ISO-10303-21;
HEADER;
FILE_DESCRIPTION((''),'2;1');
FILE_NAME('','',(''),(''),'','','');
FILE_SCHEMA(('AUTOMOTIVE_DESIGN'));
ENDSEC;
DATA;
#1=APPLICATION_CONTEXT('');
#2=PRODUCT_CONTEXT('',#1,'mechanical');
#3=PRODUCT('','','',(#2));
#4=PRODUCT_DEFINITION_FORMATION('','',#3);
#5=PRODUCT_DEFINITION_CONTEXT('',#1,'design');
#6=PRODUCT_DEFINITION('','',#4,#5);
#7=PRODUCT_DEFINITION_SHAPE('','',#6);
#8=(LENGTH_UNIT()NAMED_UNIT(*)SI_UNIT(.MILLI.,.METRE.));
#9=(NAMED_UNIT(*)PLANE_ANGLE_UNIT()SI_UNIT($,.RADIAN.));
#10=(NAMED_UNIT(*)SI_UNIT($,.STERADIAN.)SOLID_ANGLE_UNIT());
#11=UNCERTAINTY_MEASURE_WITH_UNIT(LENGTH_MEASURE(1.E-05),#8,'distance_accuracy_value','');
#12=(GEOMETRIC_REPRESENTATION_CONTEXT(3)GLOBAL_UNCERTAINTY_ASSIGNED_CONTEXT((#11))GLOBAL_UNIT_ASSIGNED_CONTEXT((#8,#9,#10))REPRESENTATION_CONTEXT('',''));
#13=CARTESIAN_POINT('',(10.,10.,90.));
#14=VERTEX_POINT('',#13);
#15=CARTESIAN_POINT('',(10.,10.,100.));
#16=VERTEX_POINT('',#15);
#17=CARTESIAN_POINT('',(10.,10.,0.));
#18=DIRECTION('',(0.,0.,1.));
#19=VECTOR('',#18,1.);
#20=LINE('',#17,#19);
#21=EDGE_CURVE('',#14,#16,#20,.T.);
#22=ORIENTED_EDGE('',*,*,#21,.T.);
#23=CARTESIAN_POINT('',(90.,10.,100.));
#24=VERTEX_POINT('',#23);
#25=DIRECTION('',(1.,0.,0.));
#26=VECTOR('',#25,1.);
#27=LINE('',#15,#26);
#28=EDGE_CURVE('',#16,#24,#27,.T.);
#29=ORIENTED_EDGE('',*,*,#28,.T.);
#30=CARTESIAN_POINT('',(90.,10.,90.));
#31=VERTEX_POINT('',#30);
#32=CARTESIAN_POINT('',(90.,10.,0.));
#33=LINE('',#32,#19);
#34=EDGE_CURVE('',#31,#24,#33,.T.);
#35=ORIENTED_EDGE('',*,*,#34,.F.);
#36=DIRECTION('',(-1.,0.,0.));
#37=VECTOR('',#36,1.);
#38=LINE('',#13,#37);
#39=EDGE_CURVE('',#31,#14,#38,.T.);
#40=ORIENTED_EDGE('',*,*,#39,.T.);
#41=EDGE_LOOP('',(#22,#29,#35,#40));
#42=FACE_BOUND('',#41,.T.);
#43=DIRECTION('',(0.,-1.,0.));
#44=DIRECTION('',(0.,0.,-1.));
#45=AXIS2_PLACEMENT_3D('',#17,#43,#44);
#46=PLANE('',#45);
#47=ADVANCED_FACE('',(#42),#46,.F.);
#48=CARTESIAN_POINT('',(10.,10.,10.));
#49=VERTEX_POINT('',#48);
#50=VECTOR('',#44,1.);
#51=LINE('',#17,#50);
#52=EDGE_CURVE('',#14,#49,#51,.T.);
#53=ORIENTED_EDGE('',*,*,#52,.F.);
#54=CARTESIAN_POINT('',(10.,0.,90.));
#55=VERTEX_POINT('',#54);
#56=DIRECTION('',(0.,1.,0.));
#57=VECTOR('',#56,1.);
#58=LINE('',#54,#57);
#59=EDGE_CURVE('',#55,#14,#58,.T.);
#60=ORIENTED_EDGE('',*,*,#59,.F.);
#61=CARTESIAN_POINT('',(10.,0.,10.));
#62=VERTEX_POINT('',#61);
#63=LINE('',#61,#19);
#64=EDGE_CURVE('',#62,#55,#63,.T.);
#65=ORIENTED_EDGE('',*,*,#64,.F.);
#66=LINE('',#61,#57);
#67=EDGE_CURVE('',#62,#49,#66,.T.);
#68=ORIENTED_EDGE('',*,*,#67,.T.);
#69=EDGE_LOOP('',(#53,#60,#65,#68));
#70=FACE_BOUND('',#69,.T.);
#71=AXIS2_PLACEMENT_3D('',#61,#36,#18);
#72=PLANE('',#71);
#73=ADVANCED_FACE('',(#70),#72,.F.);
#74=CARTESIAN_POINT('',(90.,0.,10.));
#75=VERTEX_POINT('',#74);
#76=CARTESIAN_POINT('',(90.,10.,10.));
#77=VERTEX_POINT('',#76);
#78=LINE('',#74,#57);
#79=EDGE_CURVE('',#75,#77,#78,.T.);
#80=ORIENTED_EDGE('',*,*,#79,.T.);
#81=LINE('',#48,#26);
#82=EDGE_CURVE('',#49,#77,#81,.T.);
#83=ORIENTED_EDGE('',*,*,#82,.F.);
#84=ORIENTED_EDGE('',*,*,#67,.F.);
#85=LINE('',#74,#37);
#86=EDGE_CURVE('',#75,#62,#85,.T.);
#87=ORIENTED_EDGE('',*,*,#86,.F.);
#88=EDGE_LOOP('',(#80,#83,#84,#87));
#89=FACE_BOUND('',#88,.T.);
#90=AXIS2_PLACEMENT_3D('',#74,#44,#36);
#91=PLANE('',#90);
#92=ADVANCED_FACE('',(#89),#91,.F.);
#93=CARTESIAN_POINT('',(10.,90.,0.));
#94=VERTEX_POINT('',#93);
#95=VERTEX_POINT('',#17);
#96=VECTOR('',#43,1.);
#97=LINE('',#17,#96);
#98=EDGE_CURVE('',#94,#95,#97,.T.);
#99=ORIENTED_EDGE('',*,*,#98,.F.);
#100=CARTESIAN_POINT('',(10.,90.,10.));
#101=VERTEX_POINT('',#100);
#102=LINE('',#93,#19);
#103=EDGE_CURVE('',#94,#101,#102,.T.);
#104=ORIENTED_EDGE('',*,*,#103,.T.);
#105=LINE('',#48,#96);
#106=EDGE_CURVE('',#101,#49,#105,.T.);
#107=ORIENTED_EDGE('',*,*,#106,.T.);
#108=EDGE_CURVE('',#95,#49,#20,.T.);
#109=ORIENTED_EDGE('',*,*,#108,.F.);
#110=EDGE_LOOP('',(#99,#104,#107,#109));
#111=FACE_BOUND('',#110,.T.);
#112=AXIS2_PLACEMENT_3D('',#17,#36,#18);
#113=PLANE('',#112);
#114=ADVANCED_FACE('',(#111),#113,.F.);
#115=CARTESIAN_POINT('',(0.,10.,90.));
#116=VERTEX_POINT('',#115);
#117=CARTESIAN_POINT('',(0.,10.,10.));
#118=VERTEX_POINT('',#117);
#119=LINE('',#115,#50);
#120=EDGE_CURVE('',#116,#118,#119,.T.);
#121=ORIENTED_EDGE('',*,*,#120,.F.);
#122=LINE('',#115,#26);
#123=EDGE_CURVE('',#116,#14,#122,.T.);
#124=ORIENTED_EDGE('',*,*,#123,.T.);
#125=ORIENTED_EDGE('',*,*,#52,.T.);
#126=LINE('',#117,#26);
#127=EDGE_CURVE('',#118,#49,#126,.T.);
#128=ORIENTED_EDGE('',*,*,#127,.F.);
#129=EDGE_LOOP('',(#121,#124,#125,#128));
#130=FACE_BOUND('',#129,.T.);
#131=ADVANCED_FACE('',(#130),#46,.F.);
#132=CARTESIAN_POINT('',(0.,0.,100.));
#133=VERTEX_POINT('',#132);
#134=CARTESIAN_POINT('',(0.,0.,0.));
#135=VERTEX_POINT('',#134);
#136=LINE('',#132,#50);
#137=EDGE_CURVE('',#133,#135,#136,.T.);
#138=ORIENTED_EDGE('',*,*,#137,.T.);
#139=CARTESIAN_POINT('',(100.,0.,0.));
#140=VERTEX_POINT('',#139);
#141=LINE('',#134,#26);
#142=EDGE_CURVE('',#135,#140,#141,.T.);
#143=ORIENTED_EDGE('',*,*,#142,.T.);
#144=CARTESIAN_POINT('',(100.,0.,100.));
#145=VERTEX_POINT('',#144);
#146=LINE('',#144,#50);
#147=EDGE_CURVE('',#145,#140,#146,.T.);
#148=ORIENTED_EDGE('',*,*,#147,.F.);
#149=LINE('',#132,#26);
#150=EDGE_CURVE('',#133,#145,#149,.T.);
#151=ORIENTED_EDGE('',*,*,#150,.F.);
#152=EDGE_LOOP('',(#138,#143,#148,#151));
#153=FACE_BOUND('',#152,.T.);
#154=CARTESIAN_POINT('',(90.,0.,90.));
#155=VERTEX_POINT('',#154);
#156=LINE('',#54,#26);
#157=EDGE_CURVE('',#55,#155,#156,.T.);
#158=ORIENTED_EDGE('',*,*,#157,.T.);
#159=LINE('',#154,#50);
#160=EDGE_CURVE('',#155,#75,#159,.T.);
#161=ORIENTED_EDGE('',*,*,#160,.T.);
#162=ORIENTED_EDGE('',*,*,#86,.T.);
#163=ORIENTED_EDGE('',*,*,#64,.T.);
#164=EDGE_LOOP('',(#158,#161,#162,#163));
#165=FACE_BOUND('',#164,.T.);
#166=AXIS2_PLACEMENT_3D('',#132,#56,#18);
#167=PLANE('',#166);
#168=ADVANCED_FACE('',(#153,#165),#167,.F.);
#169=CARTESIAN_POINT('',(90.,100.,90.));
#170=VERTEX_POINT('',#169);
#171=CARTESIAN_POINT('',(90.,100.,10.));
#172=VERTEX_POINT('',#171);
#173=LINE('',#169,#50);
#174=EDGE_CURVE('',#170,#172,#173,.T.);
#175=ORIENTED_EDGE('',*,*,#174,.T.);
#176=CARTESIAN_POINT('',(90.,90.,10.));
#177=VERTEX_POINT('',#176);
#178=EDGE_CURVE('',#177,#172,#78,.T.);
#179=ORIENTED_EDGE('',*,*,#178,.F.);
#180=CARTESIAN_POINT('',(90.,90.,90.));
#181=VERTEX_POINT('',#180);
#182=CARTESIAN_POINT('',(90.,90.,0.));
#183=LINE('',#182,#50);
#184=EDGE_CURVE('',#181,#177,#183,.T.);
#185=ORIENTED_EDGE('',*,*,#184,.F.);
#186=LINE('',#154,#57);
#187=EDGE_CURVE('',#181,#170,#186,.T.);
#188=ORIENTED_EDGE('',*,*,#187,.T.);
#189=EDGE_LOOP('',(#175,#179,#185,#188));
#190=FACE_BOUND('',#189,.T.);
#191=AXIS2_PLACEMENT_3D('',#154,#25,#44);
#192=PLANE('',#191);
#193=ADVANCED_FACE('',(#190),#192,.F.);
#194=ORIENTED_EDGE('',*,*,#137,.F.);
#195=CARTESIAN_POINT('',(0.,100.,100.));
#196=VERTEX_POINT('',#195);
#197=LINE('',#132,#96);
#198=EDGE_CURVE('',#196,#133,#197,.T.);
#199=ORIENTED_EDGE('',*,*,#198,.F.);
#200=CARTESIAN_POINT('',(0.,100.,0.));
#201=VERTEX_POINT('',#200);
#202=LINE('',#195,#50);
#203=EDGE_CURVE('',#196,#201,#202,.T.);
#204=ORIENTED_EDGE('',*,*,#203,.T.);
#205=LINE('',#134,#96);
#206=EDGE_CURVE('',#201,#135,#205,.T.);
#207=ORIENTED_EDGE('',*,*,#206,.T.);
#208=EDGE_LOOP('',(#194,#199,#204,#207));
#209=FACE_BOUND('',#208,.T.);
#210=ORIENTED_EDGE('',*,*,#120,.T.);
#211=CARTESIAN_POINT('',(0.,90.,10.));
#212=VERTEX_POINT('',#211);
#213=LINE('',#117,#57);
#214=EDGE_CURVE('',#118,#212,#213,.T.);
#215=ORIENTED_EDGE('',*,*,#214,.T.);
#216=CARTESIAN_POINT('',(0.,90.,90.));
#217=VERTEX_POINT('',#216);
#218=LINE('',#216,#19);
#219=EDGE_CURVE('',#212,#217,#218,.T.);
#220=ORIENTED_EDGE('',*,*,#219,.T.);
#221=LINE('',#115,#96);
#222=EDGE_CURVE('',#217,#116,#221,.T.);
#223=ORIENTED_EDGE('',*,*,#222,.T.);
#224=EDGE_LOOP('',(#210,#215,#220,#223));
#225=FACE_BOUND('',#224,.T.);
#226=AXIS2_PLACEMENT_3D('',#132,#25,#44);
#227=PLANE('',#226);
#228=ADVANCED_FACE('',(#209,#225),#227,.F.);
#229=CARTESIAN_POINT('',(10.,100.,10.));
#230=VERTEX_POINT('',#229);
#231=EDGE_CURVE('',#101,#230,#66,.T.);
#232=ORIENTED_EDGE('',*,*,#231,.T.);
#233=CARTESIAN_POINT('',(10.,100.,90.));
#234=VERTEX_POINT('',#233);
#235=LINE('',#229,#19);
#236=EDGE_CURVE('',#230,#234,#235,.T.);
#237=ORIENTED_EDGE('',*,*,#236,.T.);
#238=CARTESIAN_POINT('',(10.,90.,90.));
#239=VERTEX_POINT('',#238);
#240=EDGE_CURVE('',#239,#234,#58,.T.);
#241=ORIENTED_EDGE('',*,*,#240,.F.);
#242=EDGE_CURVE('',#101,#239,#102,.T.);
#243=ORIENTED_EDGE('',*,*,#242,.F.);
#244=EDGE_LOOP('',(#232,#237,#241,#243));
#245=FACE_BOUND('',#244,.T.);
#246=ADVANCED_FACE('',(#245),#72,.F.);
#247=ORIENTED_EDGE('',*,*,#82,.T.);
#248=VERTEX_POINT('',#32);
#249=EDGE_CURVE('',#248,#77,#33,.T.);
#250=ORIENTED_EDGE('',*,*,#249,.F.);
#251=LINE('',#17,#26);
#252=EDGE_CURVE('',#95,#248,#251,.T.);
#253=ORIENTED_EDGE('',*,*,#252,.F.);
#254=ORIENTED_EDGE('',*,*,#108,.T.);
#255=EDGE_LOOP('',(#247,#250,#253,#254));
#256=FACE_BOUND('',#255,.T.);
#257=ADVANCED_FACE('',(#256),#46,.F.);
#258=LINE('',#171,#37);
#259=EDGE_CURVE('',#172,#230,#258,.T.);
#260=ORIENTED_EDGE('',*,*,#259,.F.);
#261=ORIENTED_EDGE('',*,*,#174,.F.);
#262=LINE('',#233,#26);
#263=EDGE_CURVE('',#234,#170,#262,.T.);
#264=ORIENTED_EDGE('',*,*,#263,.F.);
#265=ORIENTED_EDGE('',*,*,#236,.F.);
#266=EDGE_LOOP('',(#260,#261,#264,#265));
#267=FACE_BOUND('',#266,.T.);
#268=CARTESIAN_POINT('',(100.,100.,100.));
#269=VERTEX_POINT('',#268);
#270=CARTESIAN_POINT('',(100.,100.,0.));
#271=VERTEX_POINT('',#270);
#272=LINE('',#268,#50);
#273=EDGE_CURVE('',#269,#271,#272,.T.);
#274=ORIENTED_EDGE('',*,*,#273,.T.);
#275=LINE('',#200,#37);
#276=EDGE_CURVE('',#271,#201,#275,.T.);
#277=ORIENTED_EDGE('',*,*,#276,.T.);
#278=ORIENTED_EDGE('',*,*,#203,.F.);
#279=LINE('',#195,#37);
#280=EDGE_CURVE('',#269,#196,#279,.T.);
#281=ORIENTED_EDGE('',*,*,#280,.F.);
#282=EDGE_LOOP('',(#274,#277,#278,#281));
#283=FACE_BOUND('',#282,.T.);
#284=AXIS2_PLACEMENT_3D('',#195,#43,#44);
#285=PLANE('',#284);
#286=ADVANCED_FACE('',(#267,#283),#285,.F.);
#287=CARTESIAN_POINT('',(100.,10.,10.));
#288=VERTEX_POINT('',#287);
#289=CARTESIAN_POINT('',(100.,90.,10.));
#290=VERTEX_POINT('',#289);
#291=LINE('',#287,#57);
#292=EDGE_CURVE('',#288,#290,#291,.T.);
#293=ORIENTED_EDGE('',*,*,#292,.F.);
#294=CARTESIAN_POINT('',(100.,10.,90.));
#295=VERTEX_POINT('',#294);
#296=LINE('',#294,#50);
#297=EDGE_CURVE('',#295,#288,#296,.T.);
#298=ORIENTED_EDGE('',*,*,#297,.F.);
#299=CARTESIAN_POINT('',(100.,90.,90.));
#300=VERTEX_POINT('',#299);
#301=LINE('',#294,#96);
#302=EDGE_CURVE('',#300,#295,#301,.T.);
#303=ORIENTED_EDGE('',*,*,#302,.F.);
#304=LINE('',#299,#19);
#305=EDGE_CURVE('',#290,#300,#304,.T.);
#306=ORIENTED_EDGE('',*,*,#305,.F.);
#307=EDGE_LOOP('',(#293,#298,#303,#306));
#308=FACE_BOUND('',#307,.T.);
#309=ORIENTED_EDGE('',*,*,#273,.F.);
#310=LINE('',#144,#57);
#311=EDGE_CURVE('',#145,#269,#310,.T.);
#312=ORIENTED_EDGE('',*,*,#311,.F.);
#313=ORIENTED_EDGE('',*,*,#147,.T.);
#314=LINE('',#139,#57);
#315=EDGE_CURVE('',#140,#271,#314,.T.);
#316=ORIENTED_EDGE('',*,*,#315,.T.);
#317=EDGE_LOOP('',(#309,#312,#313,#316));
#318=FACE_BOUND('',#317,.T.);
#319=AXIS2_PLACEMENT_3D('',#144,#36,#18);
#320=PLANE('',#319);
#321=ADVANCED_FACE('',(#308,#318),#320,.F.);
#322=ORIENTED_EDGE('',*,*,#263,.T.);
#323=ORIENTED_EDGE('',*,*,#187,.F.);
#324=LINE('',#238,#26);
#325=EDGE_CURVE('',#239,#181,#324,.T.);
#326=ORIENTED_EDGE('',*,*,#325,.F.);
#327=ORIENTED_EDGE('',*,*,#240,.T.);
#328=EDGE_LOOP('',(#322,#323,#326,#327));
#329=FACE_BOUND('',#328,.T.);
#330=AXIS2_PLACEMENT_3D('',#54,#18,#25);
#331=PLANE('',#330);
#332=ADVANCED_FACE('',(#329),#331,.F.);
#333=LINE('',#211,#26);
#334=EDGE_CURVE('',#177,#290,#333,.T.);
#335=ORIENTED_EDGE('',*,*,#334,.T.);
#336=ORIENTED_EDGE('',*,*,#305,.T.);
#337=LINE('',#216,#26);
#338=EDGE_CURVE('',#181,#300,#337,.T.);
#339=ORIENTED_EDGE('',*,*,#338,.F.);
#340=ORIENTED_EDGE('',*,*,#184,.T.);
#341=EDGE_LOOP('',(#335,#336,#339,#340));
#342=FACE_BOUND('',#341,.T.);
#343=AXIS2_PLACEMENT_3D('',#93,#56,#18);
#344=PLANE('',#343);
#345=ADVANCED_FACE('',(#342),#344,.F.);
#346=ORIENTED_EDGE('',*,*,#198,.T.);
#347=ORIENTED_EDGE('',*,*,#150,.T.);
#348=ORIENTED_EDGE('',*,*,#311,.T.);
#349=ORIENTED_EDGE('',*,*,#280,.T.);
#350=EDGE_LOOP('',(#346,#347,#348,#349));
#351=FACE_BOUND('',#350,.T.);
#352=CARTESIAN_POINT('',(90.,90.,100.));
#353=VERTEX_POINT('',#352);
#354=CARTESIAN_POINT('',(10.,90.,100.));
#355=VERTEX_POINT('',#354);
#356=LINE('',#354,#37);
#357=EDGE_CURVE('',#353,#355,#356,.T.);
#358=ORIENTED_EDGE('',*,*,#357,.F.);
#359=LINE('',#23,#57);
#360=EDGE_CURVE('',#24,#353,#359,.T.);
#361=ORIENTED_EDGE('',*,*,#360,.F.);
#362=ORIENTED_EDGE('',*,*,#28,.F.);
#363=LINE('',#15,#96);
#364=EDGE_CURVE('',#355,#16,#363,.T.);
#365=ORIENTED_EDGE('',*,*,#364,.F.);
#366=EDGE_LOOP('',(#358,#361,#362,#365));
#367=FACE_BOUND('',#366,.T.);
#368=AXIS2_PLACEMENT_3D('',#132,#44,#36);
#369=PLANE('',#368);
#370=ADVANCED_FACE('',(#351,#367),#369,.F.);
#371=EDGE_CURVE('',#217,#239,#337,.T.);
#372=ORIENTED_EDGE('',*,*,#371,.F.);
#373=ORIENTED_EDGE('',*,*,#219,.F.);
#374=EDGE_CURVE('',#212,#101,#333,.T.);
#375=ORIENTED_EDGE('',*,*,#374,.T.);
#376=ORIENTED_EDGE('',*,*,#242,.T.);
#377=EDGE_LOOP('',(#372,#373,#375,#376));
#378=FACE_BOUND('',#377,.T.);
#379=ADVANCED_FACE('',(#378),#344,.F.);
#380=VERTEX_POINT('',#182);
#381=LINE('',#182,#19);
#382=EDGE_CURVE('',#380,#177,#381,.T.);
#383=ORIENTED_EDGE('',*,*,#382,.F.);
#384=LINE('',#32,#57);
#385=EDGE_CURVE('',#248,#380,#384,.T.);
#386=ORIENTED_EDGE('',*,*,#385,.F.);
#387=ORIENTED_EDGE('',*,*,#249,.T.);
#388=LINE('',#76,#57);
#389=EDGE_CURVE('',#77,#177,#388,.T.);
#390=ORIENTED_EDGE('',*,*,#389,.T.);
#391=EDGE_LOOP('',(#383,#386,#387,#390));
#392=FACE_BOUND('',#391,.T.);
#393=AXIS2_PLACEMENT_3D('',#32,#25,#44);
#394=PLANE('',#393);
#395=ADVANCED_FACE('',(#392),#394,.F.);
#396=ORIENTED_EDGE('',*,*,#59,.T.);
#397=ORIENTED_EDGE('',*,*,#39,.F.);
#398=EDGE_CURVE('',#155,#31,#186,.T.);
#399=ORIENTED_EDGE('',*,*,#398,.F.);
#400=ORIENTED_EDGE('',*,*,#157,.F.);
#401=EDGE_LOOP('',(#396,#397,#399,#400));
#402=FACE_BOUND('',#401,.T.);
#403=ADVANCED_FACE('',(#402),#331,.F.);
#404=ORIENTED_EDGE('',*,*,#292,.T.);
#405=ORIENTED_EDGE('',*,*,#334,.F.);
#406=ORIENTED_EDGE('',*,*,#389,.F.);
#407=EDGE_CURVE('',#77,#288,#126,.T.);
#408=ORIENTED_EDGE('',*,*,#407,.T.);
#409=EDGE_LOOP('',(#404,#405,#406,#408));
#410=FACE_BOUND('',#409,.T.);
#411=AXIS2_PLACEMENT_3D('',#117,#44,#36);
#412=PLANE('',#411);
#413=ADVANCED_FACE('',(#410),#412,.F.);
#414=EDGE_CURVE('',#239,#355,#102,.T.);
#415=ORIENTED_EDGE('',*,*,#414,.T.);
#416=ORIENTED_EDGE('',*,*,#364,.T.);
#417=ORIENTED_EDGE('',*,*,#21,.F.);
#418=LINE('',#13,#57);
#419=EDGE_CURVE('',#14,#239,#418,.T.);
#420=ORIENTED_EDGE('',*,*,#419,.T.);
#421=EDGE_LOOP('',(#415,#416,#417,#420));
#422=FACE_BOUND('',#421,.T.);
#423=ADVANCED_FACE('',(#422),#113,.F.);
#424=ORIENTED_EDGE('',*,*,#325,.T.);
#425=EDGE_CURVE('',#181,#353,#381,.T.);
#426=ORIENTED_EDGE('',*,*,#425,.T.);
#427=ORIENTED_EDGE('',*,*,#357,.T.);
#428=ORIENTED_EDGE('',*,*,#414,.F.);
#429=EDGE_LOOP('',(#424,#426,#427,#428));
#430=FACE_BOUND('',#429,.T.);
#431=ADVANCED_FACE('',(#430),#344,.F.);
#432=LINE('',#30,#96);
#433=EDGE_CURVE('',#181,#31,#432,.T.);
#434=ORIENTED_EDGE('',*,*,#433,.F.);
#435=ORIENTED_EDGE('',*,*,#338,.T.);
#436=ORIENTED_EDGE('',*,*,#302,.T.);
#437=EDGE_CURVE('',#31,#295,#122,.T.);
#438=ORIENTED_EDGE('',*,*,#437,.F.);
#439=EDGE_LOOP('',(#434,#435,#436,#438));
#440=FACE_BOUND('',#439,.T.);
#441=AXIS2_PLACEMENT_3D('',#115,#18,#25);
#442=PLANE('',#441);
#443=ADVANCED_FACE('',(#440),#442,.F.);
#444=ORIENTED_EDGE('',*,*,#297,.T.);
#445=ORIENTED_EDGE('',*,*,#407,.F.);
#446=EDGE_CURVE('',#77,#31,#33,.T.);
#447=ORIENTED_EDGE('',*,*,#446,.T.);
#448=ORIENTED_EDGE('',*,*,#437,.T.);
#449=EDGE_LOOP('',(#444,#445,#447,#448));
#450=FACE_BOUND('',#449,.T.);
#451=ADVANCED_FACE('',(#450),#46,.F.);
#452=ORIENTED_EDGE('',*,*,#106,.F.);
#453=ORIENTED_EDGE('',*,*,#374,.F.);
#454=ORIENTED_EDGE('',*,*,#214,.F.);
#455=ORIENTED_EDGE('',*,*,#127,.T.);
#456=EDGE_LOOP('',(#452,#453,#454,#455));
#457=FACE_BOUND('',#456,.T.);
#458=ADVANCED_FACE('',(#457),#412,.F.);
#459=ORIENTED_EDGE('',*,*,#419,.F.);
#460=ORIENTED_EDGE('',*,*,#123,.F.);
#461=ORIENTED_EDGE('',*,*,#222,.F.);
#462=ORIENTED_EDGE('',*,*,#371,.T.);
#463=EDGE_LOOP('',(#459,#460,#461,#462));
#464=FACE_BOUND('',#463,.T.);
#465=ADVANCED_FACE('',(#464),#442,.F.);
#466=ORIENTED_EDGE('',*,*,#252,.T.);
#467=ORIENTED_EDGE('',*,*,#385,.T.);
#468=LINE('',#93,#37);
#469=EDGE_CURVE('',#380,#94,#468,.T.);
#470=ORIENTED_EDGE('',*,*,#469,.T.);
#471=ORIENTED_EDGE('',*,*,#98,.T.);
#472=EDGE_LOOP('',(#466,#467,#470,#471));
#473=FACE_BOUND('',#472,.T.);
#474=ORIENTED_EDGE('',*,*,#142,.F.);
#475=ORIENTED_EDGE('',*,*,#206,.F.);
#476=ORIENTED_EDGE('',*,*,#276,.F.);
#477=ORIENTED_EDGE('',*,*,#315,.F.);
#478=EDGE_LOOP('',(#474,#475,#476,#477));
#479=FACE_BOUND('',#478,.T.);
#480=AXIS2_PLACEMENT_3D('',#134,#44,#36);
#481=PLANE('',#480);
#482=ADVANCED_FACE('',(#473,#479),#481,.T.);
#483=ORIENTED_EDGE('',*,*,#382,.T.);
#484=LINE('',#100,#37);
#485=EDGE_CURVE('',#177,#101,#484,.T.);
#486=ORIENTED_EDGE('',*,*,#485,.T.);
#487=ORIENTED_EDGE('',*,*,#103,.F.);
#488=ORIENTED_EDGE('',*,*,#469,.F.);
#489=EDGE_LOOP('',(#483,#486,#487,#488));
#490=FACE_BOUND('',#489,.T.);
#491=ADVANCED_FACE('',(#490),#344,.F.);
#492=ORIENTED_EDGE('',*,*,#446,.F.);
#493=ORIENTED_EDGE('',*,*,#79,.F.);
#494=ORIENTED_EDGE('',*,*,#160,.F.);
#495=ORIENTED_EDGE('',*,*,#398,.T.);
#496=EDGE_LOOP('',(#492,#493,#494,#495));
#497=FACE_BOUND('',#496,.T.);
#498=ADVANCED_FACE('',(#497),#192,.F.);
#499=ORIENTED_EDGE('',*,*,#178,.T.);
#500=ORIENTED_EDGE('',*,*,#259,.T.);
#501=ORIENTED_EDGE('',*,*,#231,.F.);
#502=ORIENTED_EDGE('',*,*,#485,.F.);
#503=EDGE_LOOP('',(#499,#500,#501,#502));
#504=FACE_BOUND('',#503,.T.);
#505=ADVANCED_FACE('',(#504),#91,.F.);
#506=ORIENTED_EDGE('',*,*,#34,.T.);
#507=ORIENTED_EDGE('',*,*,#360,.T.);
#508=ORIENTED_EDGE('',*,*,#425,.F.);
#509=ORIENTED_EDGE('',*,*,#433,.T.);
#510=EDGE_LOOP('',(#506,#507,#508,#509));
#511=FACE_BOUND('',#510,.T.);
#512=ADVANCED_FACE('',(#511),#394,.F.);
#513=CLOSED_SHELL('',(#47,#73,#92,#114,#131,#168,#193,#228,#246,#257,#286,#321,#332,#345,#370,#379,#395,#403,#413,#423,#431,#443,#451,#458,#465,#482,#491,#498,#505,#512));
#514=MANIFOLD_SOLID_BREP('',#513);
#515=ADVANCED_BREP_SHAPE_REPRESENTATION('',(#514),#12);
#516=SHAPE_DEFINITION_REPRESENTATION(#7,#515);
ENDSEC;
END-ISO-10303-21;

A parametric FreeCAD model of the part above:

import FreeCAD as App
import Part
import Sketcher
Q = App.Units.Quantity


def add_polygon(sketch, points):
    """Adds a closed chain of lines whose ends are joined by coincident constraints."""
    first, n = sketch.GeometryCount, len(points)
    for a, b in zip(points, points[1:] + points[:1]):
        sketch.addGeometry(Part.LineSegment(App.Vector(*a, 0), App.Vector(*b, 0)), False)
    for i in range(n):
        sketch.addConstraint(Sketcher.Constraint("Coincident", first + i, 2, first + (i + 1) % n, 1))

doc = App.newDocument("Part")
body = doc.addObject("PartDesign::Body", "Body")

sketch1 = body.newObject("Sketcher::SketchObject", "Sketch")
sketch1.AttachmentSupport = (doc.getObject("XY_Plane"), [""])
sketch1.MapMode = "FlatFace"
add_polygon(sketch1, [(0, 100), (0, 0), (100, 0), (100, 100)])
sketch1.addConstraint([
    Sketcher.Constraint("Vertical", 0),
    Sketcher.Constraint("Horizontal", 1),
    Sketcher.Constraint("Vertical", 2),
    Sketcher.Constraint("Horizontal", 3),
    Sketcher.Constraint("Coincident", 0, 2, -1, 1),
    Sketcher.Constraint("Equal", 3, 0),
    Sketcher.Constraint("DistanceX", 1, 1, 1, 2, Q("100 mm")),
])
pad1 = body.newObject("PartDesign::Pad", "Pad")
pad1.Profile = sketch1
pad1.Length = 100

sketch2 = body.newObject("Sketcher::SketchObject", "Sketch001")
sketch2.AttachmentSupport = (doc.getObject("XY_Plane"), [""])
sketch2.MapMode = "FlatFace"
sketch2.AttachmentOffset = App.Placement(App.Vector(0, 0, 100), App.Rotation())
add_polygon(sketch2, [(10, 90), (10, 10), (90, 10), (90, 90)])
sketch2.addConstraint([
    Sketcher.Constraint("Vertical", 0),
    Sketcher.Constraint("Horizontal", 1),
    Sketcher.Constraint("Vertical", 2),
    Sketcher.Constraint("Horizontal", 3),
    Sketcher.Constraint("Equal", 3, 0),
    Sketcher.Constraint("DistanceX", 1, 1, 1, 2, Q("80 mm")),
    Sketcher.Constraint("DistanceX", -1, 1, 0, 2, Q("10 mm")),
    Sketcher.Constraint("DistanceY", -1, 1, 0, 2, Q("10 mm")),
])
pocket1 = body.newObject("PartDesign::Pocket", "Pocket")
pocket1.Profile = sketch2
pocket1.Type = "ThroughAll"

sketch3 = body.newObject("Sketcher::SketchObject", "Sketch002")
sketch3.AttachmentSupport = (doc.getObject("YZ_Plane"), [""])
sketch3.MapMode = "FlatFace"
sketch3.AttachmentOffset = App.Placement(App.Vector(0, 0, 100), App.Rotation())
add_polygon(sketch3, [(90, 90), (10, 90), (10, 10), (90, 10)])
sketch3.addConstraint([
    Sketcher.Constraint("Horizontal", 0),
    Sketcher.Constraint("Vertical", 1),
    Sketcher.Constraint("Horizontal", 2),
    Sketcher.Constraint("Vertical", 3),
    Sketcher.Constraint("Equal", 2, 1),
    Sketcher.Constraint("DistanceX", 0, 2, 0, 1, Q("80 mm")),
    Sketcher.Constraint("DistanceX", -1, 1, 0, 2, Q("10 mm")),
    Sketcher.Constraint("DistanceY", -1, 1, 0, 2, Q("90 mm")),
])
pocket2 = body.newObject("PartDesign::Pocket", "Pocket001")
pocket2.Profile = sketch3
pocket2.Type = "ThroughAll"

sketch4 = body.newObject("Sketcher::SketchObject", "Sketch003")
sketch4.AttachmentSupport = (doc.getObject("XZ_Plane"), [""])
sketch4.MapMode = "FlatFace"
sketch4.AttachmentOffset = App.Placement(App.Vector(0, 0, -100), App.Rotation())
add_polygon(sketch4, [(10, 10), (10, 90), (90, 90), (90, 10)])
sketch4.addConstraint([
    Sketcher.Constraint("Vertical", 0),
    Sketcher.Constraint("Horizontal", 1),
    Sketcher.Constraint("Vertical", 2),
    Sketcher.Constraint("Horizontal", 3),
    Sketcher.Constraint("Equal", 3, 0),
    Sketcher.Constraint("DistanceX", 1, 1, 1, 2, Q("80 mm")),
    Sketcher.Constraint("DistanceX", -1, 1, 0, 2, Q("10 mm")),
    Sketcher.Constraint("DistanceY", -1, 1, 0, 2, Q("90 mm")),
])
pocket3 = body.newObject("PartDesign::Pocket", "Pocket002")
pocket3.Profile = sketch4
pocket3.Type = "ThroughAll"
pocket3.Reversed = True

doc.recompute()
